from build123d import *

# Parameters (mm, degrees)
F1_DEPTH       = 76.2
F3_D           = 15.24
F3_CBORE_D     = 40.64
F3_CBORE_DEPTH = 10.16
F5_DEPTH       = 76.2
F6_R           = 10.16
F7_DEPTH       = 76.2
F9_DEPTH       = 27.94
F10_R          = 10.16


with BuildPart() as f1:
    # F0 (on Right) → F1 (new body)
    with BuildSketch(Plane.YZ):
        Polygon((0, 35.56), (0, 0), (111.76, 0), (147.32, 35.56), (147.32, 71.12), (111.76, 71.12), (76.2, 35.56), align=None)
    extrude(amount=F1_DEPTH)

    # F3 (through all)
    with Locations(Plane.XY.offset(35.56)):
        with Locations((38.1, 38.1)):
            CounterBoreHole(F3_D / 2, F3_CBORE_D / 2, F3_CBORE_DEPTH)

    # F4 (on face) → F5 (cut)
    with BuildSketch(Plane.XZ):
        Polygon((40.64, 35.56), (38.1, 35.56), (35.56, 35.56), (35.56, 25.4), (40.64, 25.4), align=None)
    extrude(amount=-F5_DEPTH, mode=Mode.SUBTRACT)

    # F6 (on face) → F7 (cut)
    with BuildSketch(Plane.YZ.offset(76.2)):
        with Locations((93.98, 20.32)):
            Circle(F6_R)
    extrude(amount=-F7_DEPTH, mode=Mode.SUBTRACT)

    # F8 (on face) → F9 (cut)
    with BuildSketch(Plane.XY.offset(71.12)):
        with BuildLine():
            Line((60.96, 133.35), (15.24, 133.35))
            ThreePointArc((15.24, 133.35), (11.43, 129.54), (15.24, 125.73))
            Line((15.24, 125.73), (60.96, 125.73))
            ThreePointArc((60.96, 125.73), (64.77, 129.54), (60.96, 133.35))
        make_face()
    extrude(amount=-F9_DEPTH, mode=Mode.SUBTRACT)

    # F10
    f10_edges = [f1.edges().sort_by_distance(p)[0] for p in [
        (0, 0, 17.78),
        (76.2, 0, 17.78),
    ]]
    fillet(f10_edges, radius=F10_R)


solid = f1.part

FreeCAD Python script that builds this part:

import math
import FreeCAD as App
import Part
import Sketcher
from FreeCAD import Vector
Q = App.Units.Quantity


def edges_at(feature, points):
    """Names of the edges that pass closest to the given points."""
    edges = feature.Shape.Edges
    near = lambda p: min(range(len(edges)), key=lambda i: edges[i].distToShape(Part.Vertex(*p))[0])
    return sorted({f"Edge{near(p) + 1}" for p in points})


def add_polygon(sketch, points):
    """Adds a closed chain of lines whose ends are joined by coincident constraints."""
    first, n = sketch.GeometryCount, len(points)
    for a, b in zip(points, points[1:] + points[:1]):
        sketch.addGeometry(Part.LineSegment(App.Vector(*a, 0), App.Vector(*b, 0)), False)
    for i in range(n):
        sketch.addConstraint(Sketcher.Constraint("Coincident", first + i, 2, first + (i + 1) % n, 1))

doc = App.newDocument("Part")
body = doc.addObject("PartDesign::Body", "Body")

sketch1 = doc.addObject("Sketcher::SketchObject", "Sketch")
body.addObject(sketch1)
sketch1.AttachmentSupport = (doc.YZ_Plane, [""])
sketch1.MapMode = "FlatFace"
add_polygon(sketch1, [(0, 36), (0, 0), (112, 0), (147, 36), (147, 71), (112, 71), (76, 36)])
sketch1.addConstraint(Sketcher.Constraint("Vertical", 0))
sketch1.addConstraint(Sketcher.Constraint("Horizontal", 1))
sketch1.addConstraint(Sketcher.Constraint("Vertical", 3))
sketch1.addConstraint(Sketcher.Constraint("Horizontal", 4))
sketch1.addConstraint(Sketcher.Constraint("Horizontal", 6))
sketch1.addConstraint(Sketcher.Constraint("Coincident", 0, 2, -1, 1))
sketch1.addConstraint(Sketcher.Constraint("Parallel", 2, 5))
sketch1.addConstraint(Sketcher.Constraint("Horizontal", 2, 2, 5, 2))
sketch1.addConstraint(Sketcher.Constraint("Vertical", 1, 2, 4, 2))
sketch1.addConstraint(Sketcher.Constraint("Equal", 4, 0))
sketch1.addConstraint(Sketcher.Constraint("Equal", 0, 3))
sketch1.addConstraint(Sketcher.Constraint("DistanceX", 6, 2, 6, 1, Q("3 in")))
sketch1.addConstraint(Sketcher.Constraint("DistanceX", 1, 1, 1, 2, Q("4.4 in")))
pad1 = doc.addObject("PartDesign::Pad", "Pad")
body.addObject(pad1)
pad1.Profile = sketch1
pad1.Length = Q("3 in")

sketch2 = doc.addObject("Sketcher::SketchObject", "Sketch001")
body.addObject(sketch2)
sketch2.AttachmentSupport = (doc.XY_Plane, [""])
sketch2.MapMode = "FlatFace"
sketch2.AttachmentOffset = App.Placement(Vector(0, 0, 1.4 * 25.4), App.Rotation())
sketch2.addGeometry(Part.Circle(Vector(38, 38, 0), Vector(0, 0, 1), 8), False)
sketch2.addConstraint(Sketcher.Constraint("Diameter", 0, Q("0.6 in")))
sketch2.addConstraint(Sketcher.Constraint("DistanceX", -1, 1, 0, 3, Q("1.5 in")))
sketch2.addConstraint(Sketcher.Constraint("DistanceY", -1, 1, 0, 3, Q("1.5 in")))
doc.recompute()
hole = doc.addObject("PartDesign::Hole", "Hole")
body.addObject(hole)
hole.Profile = sketch2
hole.ThreadType = "None"
hole.Diameter = Q("0.6 in")
hole.DepthType = "ThroughAll"
hole.HoleCutType = "Counterbore"
hole.HoleCutDiameter = Q("1.6 in")
hole.HoleCutDepth = Q("0.4 in")

sketch3 = doc.addObject("Sketcher::SketchObject", "Sketch002")
body.addObject(sketch3)
sketch3.AttachmentSupport = (doc.XZ_Plane, [""])
sketch3.MapMode = "FlatFace"
add_polygon(sketch3, [(41, 36), (36, 36), (36, 25), (41, 25)])
sketch3.addConstraint(Sketcher.Constraint("Horizontal", 0))
sketch3.addConstraint(Sketcher.Constraint("Vertical", 1))
sketch3.addConstraint(Sketcher.Constraint("Horizontal", 2))
sketch3.addConstraint(Sketcher.Constraint("Vertical", 3))
sketch3.addConstraint(Sketcher.Constraint("DistanceX", 0, 2, 0, 1, Q("0.2 in")))
sketch3.addConstraint(Sketcher.Constraint("DistanceY", 1, 2, 1, 1, Q("0.4 in")))
sketch3.addConstraint(Sketcher.Constraint("DistanceY", -1, 1, 1, 2, Q("1 in")))
sketch3.addConstraint(Sketcher.Constraint("DistanceX", -1, 1, 0, 2, Q("1.4 in")))
pocket1 = doc.addObject("PartDesign::Pocket", "Pocket")
body.addObject(pocket1)
pocket1.Profile = sketch3
pocket1.Length = Q("3 in")

sketch4 = doc.addObject("Sketcher::SketchObject", "Sketch003")
body.addObject(sketch4)
sketch4.AttachmentSupport = (doc.YZ_Plane, [""])
sketch4.MapMode = "FlatFace"
sketch4.AttachmentOffset = App.Placement(Vector(0, 0, 3 * 25.4), App.Rotation())
sketch4.addGeometry(Part.Circle(Vector(94, 20, 0), Vector(0, 0, 1), 10), False)
sketch4.addConstraint(Sketcher.Constraint("Diameter", 0, Q("0.8 in")))
sketch4.addConstraint(Sketcher.Constraint("DistanceX", -1, 1, 0, 3, Q("3.7 in")))
sketch4.addConstraint(Sketcher.Constraint("DistanceY", -1, 1, 0, 3, Q("0.8 in")))
pocket2 = doc.addObject("PartDesign::Pocket", "Pocket001")
body.addObject(pocket2)
pocket2.Profile = sketch4
pocket2.Length = Q("3 in")

sketch5 = doc.addObject("Sketcher::SketchObject", "Sketch004")
body.addObject(sketch5)
sketch5.AttachmentSupport = (doc.XY_Plane, [""])
sketch5.MapMode = "FlatFace"
sketch5.AttachmentOffset = App.Placement(Vector(0, 0, 2.8 * 25.4), App.Rotation())
sketch5.addGeometry(Part.LineSegment(Vector(61, 133.3, 0), Vector(15.2, 133.3, 0)), False)
sketch5.addGeometry(Part.ArcOfCircle(Part.Circle(Vector(15.2, 129.5, 0), Vector(0, 0, 1), 3.8), math.radians(90), math.radians(270)), False)
sketch5.addGeometry(Part.LineSegment(Vector(15.2, 125.7, 0), Vector(61, 125.7, 0)), False)
sketch5.addGeometry(Part.ArcOfCircle(Part.Circle(Vector(61, 129.5, 0), Vector(0, 0, 1), 3.8), math.radians(-90), math.radians(90)), False)
sketch5.addConstraint(Sketcher.Constraint("Tangent", 0, 2, 1, 1))
sketch5.addConstraint(Sketcher.Constraint("Tangent", 1, 2, 2, 1))
sketch5.addConstraint(Sketcher.Constraint("Tangent", 2, 2, 3, 1))
sketch5.addConstraint(Sketcher.Constraint("Tangent", 3, 2, 0, 1))
sketch5.addConstraint(Sketcher.Constraint("Horizontal", 0))
sketch5.addConstraint(Sketcher.Constraint("Horizontal", 2))
sketch5.addConstraint(Sketcher.Constraint("Radius", 1, Q("0.15 in")))
sketch5.addConstraint(Sketcher.Constraint("DistanceX", 0, 2, 0, 1, Q("1.8 in")))
sketch5.addConstraint(Sketcher.Constraint("DistanceX", -1, 1, 1, 3, Q("0.6 in")))
sketch5.addConstraint(Sketcher.Constraint("DistanceY", -1, 1, 1, 3, Q("5.1 in")))
pocket3 = doc.addObject("PartDesign::Pocket", "Pocket002")
body.addObject(pocket3)
pocket3.Profile = sketch5
pocket3.Length = Q("1.1 in")
doc.recompute()

fillet = doc.addObject("PartDesign::Fillet", "Fillet")
body.addObject(fillet)
fillet.Base = (pocket3, edges_at(pocket3, [(0, 0, 17.78), (76.2, 0, 17.78)]))
fillet.Radius = Q("0.4 in")

doc.recompute()
